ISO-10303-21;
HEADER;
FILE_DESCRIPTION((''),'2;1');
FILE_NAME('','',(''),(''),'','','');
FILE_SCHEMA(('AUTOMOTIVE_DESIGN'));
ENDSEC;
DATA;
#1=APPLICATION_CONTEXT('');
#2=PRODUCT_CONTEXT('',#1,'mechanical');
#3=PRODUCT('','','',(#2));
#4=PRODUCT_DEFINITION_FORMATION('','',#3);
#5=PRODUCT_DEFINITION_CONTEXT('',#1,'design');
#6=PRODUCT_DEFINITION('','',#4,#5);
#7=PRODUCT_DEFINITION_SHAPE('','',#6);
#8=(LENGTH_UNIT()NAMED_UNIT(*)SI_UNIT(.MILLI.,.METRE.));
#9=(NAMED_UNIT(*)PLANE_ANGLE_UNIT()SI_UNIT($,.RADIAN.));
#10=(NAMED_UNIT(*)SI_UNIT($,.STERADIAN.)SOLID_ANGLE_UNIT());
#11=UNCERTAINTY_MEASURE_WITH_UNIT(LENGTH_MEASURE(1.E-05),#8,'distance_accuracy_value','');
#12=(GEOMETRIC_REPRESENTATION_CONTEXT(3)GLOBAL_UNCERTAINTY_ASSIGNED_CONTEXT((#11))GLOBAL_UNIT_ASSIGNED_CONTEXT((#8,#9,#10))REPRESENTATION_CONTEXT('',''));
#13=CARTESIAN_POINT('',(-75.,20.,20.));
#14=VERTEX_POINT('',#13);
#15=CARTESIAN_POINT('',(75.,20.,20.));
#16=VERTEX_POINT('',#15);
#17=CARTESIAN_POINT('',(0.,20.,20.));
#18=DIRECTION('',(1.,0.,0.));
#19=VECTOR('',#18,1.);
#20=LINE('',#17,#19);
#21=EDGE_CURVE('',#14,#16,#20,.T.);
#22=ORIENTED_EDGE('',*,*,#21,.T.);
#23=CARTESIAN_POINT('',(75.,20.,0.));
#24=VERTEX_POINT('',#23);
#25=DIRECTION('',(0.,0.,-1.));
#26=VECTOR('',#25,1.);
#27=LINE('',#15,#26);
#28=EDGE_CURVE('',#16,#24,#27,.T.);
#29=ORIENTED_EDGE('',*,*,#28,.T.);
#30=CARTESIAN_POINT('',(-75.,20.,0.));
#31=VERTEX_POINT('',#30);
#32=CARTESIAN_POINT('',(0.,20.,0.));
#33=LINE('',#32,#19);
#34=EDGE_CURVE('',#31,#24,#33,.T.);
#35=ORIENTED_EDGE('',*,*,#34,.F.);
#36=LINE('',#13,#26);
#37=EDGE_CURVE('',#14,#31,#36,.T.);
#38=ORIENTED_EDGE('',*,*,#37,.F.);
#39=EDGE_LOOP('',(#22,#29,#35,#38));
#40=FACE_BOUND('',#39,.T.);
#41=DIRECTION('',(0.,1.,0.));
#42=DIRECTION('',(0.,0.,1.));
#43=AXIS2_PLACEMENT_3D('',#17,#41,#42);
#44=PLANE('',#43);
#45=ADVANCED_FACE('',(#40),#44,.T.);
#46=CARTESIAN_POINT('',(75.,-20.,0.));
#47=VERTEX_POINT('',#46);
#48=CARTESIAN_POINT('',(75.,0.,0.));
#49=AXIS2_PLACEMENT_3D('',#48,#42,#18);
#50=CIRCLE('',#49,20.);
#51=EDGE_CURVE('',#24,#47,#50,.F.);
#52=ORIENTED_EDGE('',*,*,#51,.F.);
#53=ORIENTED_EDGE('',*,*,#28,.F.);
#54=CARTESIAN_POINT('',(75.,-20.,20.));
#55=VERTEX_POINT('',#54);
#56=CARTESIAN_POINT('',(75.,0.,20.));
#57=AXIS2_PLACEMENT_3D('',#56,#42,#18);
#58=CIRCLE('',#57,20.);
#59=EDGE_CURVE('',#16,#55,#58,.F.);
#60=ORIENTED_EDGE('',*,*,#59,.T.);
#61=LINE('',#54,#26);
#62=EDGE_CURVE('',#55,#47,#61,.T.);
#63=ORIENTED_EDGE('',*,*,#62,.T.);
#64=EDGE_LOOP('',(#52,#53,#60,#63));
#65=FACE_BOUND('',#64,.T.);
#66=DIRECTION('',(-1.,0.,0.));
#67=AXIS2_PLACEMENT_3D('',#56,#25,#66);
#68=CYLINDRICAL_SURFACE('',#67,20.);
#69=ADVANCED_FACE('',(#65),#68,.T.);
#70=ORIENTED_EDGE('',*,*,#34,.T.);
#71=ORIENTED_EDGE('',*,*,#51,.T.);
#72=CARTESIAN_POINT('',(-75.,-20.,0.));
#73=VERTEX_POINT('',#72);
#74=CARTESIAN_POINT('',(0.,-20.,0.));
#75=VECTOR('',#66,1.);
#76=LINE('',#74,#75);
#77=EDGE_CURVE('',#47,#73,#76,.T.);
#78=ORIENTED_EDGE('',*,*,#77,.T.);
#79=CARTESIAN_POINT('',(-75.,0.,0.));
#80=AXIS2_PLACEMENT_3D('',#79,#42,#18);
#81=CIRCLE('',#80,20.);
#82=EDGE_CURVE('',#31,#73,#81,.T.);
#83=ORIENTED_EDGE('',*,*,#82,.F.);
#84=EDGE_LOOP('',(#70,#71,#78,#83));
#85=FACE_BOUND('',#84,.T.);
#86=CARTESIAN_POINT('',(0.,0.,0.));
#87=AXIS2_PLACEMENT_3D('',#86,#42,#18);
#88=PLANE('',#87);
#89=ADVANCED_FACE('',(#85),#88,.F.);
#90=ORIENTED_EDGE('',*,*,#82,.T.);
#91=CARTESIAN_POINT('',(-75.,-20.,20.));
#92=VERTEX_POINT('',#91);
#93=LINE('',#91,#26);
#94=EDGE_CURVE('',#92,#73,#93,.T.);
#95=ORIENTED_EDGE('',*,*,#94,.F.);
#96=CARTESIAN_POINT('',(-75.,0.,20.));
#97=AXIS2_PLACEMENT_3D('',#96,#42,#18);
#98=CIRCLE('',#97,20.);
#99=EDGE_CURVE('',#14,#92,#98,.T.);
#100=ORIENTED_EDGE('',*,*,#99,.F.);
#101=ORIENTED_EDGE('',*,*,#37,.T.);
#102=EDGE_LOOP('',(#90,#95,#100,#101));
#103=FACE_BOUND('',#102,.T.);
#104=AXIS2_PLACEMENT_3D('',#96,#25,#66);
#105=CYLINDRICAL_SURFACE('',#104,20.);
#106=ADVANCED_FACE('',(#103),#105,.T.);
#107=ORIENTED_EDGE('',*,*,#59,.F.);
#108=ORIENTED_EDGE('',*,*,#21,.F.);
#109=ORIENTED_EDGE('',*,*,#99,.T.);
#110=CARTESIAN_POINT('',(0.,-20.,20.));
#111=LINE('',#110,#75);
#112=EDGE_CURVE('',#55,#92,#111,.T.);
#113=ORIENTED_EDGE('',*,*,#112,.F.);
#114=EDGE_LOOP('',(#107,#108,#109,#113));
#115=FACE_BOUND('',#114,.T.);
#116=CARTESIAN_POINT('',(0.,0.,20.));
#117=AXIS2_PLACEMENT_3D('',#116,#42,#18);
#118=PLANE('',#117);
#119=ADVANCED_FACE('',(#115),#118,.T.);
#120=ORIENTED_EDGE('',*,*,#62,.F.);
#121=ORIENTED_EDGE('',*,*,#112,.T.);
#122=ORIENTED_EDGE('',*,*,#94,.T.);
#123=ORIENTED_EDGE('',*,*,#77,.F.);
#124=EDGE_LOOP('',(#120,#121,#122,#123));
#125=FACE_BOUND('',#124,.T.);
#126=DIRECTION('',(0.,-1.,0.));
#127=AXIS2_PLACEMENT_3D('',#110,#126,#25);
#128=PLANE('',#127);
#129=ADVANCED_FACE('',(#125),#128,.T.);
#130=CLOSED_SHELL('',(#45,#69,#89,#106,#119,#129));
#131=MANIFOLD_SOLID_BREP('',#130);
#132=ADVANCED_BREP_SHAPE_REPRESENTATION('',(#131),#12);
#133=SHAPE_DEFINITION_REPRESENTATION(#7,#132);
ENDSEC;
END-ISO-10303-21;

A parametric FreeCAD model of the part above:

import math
import FreeCAD as App
import Part
import Sketcher
Q = App.Units.Quantity

doc = App.newDocument("Part")
params = doc.addObject("Spreadsheet::Sheet", "Params")
for row, (alias, value) in enumerate([
    ("sketch1_radius", "20 mm"),
    ("sketch1_width", "150 mm"),
    ("pad1_length", "20 mm"),
], start=1):
    params.set(f"A{row}", alias)
    params.set(f"B{row}", "=" + value)
    params.setAlias(f"B{row}", alias)

body = doc.addObject("PartDesign::Body", "Body")

# Sketch on XY plane
sketch1 = doc.addObject("Sketcher::SketchObject", "Sketch")
body.addObject(sketch1)
sketch1.AttachmentSupport = (doc.XY_Plane, [""])
sketch1.MapMode = "FlatFace"
sketch1.addGeometry(Part.LineSegment(App.Vector(75, 20, 0), App.Vector(-75, 20, 0)), False)
sketch1.addGeometry(Part.ArcOfCircle(Part.Circle(App.Vector(-75, 0, 0), App.Vector(0, 0, 1), 20), math.radians(90), math.radians(270)), False)
sketch1.addGeometry(Part.LineSegment(App.Vector(-75, -20, 0), App.Vector(75, -20, 0)), False)
sketch1.addGeometry(Part.ArcOfCircle(Part.Circle(App.Vector(75, 0, 0), App.Vector(0, 0, 1), 20), math.radians(-90), math.radians(90)), False)
sketch1.addConstraint(Sketcher.Constraint("Tangent", 0, 2, 1, 1))
sketch1.addConstraint(Sketcher.Constraint("Tangent", 1, 2, 2, 1))
sketch1.addConstraint(Sketcher.Constraint("Tangent", 2, 2, 3, 1))
sketch1.addConstraint(Sketcher.Constraint("Tangent", 3, 2, 0, 1))
sketch1.addConstraint(Sketcher.Constraint("Horizontal", 0))
sketch1.addConstraint(Sketcher.Constraint("Horizontal", 2))
sketch1.addConstraint(Sketcher.Constraint("Symmetric", 1, 3, 3, 3, -1, 1))
sketch1.addConstraint(Sketcher.Constraint("Radius", 1, Q("20 mm")))
sketch1.addConstraint(Sketcher.Constraint("DistanceX", 0, 2, 0, 1, Q("150 mm")))
sketch1.setExpression("Constraints[7]", "Params.sketch1_radius")
sketch1.setExpression("Constraints[8]", "Params.sketch1_width")
pad1 = doc.addObject("PartDesign::Pad", "Pad")
body.addObject(pad1)
pad1.Profile = sketch1
pad1.setExpression("Length", "Params.pad1_length")

doc.recompute()
